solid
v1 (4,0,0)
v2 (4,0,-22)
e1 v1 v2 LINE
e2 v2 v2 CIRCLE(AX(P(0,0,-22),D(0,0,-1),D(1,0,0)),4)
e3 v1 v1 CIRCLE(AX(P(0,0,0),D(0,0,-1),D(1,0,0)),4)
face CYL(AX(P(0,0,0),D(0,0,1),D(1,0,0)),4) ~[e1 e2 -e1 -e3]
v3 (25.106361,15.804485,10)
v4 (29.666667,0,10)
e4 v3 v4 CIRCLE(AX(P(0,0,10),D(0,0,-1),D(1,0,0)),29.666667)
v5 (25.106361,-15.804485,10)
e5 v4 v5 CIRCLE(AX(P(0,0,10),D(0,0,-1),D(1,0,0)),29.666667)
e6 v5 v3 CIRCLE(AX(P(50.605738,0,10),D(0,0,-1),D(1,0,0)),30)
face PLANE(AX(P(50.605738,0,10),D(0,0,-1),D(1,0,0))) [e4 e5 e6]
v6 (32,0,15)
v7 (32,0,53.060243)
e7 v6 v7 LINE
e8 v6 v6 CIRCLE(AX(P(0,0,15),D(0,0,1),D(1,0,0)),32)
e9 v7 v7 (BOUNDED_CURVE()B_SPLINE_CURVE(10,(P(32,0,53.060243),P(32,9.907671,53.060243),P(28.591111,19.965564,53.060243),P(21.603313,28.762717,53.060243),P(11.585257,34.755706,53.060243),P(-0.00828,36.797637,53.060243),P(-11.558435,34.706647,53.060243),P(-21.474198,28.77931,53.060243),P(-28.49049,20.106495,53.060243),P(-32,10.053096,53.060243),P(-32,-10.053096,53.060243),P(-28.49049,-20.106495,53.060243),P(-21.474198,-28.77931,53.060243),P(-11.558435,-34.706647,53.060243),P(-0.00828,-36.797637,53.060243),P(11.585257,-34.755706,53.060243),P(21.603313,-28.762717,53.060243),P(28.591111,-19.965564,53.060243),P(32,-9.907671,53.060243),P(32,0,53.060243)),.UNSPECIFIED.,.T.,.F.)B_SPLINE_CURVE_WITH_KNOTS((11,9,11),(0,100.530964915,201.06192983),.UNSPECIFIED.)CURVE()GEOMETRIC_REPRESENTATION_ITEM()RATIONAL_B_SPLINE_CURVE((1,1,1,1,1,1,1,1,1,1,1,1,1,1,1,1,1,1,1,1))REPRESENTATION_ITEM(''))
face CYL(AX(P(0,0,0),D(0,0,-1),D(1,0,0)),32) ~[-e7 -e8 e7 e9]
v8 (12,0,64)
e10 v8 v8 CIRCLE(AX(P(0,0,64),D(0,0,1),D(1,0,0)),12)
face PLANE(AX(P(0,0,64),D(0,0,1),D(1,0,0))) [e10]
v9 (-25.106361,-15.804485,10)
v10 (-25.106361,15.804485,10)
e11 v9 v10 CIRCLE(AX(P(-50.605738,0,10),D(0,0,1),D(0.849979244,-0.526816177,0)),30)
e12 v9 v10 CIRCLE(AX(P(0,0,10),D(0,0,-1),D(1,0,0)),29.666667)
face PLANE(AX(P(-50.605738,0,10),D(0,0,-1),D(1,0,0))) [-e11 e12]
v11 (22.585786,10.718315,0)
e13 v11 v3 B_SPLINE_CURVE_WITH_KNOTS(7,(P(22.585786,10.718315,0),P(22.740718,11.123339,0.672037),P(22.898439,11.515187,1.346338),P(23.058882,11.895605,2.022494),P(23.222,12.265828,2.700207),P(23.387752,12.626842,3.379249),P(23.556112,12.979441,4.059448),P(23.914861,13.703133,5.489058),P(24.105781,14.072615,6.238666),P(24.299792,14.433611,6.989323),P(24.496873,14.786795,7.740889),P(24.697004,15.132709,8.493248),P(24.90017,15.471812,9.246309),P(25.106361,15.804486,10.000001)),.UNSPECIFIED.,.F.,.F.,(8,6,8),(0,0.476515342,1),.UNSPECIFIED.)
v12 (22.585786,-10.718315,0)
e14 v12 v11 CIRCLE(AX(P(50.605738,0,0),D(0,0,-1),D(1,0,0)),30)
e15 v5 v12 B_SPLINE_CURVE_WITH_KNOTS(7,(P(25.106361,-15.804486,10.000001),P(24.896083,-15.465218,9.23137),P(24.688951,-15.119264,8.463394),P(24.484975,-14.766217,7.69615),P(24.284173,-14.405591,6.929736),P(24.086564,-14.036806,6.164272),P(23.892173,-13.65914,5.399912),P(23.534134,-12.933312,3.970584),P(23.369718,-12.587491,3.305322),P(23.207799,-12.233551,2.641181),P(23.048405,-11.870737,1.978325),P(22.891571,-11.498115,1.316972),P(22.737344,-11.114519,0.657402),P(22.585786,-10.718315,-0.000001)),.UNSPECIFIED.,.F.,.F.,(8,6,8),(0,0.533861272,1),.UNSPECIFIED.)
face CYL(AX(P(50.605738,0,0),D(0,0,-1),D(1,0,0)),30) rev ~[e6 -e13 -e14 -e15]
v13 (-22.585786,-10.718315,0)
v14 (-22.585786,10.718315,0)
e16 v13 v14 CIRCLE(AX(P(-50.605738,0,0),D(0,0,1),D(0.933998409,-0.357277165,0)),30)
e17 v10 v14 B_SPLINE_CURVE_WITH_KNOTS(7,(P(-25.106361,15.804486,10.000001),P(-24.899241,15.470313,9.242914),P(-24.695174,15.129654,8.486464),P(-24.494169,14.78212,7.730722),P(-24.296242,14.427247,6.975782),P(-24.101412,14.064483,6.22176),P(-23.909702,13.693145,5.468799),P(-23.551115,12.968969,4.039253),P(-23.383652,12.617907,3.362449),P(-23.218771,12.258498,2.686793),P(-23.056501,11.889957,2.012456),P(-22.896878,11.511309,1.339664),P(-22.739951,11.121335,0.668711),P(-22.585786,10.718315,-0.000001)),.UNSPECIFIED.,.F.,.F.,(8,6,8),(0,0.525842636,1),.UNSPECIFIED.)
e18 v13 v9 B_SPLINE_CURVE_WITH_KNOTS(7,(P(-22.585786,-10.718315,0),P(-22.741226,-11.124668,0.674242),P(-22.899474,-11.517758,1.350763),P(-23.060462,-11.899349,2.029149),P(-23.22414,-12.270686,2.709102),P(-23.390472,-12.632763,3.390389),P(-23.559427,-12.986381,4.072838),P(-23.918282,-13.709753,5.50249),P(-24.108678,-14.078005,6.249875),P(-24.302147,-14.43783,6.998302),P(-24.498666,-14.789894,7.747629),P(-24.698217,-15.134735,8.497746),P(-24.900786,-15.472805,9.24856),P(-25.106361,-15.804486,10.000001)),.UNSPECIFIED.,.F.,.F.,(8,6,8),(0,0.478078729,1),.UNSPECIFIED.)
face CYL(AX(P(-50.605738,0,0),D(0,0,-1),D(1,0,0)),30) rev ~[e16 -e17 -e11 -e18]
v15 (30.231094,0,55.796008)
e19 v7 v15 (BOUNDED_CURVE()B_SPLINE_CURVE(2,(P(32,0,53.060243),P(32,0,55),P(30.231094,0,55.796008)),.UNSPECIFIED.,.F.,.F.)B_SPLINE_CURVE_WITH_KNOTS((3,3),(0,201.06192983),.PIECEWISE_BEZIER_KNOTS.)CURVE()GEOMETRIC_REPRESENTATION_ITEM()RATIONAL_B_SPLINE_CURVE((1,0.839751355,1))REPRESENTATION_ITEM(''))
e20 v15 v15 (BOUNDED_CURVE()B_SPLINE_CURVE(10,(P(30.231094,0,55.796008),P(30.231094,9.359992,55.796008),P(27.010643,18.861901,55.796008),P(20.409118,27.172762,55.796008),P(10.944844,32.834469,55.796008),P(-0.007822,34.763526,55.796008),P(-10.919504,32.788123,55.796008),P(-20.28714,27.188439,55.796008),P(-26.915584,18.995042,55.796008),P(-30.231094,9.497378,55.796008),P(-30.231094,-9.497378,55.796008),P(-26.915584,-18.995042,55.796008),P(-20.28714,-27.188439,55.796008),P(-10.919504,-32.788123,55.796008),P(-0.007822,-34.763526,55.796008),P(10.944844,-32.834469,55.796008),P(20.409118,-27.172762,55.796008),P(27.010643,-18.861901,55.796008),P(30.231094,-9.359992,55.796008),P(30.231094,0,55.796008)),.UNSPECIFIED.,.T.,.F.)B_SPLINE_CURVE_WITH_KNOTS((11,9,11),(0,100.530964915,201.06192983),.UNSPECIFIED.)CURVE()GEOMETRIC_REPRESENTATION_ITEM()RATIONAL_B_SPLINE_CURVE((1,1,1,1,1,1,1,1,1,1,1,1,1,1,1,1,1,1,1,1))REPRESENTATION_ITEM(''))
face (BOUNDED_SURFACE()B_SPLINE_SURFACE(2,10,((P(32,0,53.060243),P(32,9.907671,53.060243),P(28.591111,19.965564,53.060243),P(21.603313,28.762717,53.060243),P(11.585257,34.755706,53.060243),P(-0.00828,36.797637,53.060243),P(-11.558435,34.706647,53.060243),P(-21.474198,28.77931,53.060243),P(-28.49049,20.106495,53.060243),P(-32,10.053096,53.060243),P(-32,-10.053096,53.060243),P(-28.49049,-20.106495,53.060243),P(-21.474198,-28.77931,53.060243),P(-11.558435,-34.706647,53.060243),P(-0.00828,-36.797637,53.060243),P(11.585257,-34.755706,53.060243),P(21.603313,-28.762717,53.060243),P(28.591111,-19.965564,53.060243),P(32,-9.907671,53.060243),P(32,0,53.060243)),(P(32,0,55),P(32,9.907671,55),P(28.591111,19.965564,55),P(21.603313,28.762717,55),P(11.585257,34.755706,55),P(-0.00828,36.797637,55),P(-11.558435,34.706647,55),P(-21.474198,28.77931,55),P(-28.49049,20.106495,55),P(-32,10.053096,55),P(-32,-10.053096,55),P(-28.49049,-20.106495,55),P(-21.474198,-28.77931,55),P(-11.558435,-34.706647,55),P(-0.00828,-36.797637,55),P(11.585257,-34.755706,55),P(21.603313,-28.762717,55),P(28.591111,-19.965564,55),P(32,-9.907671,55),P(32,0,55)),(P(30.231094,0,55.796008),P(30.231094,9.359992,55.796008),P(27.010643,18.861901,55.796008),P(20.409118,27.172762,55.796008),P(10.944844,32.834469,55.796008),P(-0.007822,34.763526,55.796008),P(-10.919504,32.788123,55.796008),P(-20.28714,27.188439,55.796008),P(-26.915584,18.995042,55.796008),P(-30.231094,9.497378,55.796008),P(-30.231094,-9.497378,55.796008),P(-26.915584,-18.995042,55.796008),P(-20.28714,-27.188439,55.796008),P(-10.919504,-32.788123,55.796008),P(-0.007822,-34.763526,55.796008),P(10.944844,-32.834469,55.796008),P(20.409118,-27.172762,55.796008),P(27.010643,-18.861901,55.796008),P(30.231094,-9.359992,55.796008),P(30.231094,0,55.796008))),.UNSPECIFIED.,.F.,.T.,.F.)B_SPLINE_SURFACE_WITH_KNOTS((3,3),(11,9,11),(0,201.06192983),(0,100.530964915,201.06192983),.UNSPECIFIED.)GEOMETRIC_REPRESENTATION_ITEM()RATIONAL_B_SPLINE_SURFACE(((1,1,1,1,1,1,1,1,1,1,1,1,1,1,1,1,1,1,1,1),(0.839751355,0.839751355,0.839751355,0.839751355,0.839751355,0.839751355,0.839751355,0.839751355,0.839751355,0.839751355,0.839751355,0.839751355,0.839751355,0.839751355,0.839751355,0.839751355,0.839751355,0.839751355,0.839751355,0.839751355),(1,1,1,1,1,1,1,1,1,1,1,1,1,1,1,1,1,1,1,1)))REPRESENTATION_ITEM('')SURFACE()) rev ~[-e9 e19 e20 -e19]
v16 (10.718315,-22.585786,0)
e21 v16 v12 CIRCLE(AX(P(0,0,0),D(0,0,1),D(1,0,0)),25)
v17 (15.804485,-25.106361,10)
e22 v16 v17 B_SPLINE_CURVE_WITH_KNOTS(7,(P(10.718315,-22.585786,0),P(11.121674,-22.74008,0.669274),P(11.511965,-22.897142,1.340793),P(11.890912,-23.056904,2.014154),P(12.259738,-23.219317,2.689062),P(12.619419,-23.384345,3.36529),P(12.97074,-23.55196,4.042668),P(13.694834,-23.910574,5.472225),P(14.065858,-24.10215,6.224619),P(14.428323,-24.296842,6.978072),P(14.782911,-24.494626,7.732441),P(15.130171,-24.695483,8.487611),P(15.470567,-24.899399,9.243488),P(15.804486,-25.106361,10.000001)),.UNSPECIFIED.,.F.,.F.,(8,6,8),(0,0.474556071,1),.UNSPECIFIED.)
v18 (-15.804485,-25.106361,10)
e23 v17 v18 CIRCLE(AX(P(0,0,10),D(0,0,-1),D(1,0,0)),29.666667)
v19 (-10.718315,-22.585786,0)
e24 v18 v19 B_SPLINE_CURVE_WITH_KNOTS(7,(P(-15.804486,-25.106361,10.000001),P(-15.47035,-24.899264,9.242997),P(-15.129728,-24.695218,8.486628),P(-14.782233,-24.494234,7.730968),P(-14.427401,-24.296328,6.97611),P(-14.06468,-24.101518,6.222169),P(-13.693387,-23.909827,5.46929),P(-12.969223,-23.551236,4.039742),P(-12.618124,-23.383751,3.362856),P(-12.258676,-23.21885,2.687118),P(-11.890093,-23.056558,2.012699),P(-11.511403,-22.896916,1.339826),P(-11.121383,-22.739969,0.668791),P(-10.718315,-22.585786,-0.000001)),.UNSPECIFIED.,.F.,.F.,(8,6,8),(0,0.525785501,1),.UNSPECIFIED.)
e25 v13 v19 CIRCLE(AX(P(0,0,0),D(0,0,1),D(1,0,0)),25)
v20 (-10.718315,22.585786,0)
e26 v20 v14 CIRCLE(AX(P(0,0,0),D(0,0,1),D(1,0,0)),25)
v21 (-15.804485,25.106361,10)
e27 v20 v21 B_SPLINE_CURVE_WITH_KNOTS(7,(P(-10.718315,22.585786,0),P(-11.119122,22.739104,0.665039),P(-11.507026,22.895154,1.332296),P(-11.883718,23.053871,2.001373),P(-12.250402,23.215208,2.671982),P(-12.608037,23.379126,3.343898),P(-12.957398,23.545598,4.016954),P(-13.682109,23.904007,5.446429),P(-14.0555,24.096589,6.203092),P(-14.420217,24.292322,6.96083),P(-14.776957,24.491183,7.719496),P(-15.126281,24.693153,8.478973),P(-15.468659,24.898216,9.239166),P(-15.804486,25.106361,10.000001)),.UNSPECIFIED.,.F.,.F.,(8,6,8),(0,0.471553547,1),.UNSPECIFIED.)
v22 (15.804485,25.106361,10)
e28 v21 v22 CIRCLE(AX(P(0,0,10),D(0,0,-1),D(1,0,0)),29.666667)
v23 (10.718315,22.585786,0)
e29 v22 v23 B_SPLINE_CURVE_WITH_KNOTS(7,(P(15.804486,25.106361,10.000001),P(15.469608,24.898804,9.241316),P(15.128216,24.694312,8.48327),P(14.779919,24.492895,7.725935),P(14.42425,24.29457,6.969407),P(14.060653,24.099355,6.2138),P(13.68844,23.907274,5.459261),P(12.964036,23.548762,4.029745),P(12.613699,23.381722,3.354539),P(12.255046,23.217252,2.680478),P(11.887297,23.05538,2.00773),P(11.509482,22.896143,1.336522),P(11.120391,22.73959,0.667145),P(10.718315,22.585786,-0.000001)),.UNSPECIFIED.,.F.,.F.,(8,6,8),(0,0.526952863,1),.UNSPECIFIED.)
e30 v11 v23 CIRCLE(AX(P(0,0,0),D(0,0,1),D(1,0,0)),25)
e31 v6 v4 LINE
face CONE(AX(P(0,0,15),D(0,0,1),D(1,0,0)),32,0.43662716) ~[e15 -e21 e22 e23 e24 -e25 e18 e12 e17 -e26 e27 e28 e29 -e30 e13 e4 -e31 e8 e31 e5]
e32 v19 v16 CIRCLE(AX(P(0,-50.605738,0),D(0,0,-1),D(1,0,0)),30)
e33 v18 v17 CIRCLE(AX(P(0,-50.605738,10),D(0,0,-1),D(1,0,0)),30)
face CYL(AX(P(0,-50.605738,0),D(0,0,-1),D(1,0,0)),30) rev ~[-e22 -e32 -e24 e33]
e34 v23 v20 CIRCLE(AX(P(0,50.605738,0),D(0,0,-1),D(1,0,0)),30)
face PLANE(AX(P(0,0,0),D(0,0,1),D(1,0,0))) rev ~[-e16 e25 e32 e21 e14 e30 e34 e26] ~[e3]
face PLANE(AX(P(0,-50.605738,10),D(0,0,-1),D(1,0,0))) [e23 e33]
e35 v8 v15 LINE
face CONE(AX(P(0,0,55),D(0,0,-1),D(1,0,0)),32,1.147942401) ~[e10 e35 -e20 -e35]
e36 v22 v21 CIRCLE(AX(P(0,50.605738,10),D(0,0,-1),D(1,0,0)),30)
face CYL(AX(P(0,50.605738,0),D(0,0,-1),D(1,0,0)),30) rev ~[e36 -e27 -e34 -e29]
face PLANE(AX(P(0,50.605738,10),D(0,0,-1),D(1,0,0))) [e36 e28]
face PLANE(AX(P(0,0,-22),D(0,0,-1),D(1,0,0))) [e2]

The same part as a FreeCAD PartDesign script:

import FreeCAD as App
import Part
import Sketcher

V = App.Vector
Q = App.Units.Quantity


def edges_at(feature, points):
    """Names of the edges that pass closest to the given points."""
    edges = feature.Shape.Edges
    near = lambda p: min(range(len(edges)), key=lambda i: edges[i].distToShape(Part.Vertex(*p))[0])
    return sorted({f"Edge{near(p) + 1}" for p in points})

doc = App.newDocument("Part")
body = doc.addObject("PartDesign::Body", "Body")

# Sketch on XY plane
sketch1 = doc.addObject("Sketcher::SketchObject", "Sketch")
body.addObject(sketch1)
sketch1.AttachmentSupport = (doc.XY_Plane, [""])
sketch1.MapMode = "FlatFace"
sketch1.addGeometry(Part.Circle(V(0, 0, 0), V(0, 0, 1), 32), False)
sketch1.addConstraint([
    Sketcher.Constraint("Coincident", 0, 3, -1, 1),
    Sketcher.Constraint("Diameter", 0, Q("64 mm")),
])
pad1 = doc.addObject("PartDesign::Pad", "Pad")
body.addObject(pad1)
pad1.Profile = sketch1
pad1.Length = 64
doc.recompute()

chamfer = doc.addObject("PartDesign::Chamfer", "Chamfer")
body.addObject(chamfer)
chamfer.Base = (pad1, edges_at(pad1, [(-32, 0, 64)]))
chamfer.ChamferType = "Two distances"
chamfer.Size = 20
chamfer.Size2 = 9
chamfer.FlipDirection = True
doc.recompute()

chamfer2 = doc.addObject("PartDesign::Chamfer", "Chamfer001")
body.addObject(chamfer2)
chamfer2.Base = (chamfer, edges_at(chamfer, [(-32, 0, 0)]))
chamfer2.ChamferType = "Two distances"
chamfer2.Size = 15
chamfer2.Size2 = 7
doc.recompute()

fillet = doc.addObject("PartDesign::Fillet", "Fillet")
body.addObject(fillet)
fillet.Base = (chamfer2, edges_at(chamfer2, [(-32, 0, 55)]))
fillet.Radius = 3

# Sketch on XY plane
sketch2 = doc.addObject("Sketcher::SketchObject", "Sketch001")
body.addObject(sketch2)
sketch2.AttachmentSupport = (doc.XY_Plane, [""])
sketch2.MapMode = "FlatFace"
sketch2.addGeometry([
    Part.Circle(V(-51, 0, 0), V(0, 0, 1), 30),
    Part.Circle(V(0, 51, 0), V(0, 0, 1), 30),
    Part.Circle(V(51, 0, 0), V(0, 0, 1), 30),
    Part.Circle(V(0, -51, 0), V(0, 0, 1), 30),
], False)
sketch2.addConstraint([
    Sketcher.Constraint("Equal", 0, 1),
    Sketcher.Constraint("Equal", 1, 2),
    Sketcher.Constraint("Equal", 2, 3),
    Sketcher.Constraint("Symmetric", 0, 3, 2, 3, -1, 1),
    Sketcher.Constraint("Symmetric", 1, 3, 3, 3, -1, 1),
    Sketcher.Constraint("PointOnObject", 0, 3, -1),
    Sketcher.Constraint("PointOnObject", 1, 3, -2),
    Sketcher.Constraint("Diameter", 0, Q("60 mm")),
    Sketcher.Constraint("DistanceX", 0, 3, -1, 1, Q("50.605738 mm")),
    Sketcher.Constraint("DistanceY", -1, 1, 1, 3, Q("50.605738 mm")),
])
pocket1 = doc.addObject("PartDesign::Pocket", "Pocket")
body.addObject(pocket1)
pocket1.Profile = sketch2
pocket1.Length = 10
pocket1.Reversed = True

# Sketch on XY plane
sketch3 = doc.addObject("Sketcher::SketchObject", "Sketch002")
body.addObject(sketch3)
sketch3.AttachmentSupport = (doc.XY_Plane, [""])
sketch3.MapMode = "FlatFace"
sketch3.addGeometry(Part.Circle(V(0, 0, 0), V(0, 0, 1), 4), False)
sketch3.addConstraint([
    Sketcher.Constraint("Coincident", 0, 3, -1, 1),
    Sketcher.Constraint("Diameter", 0, Q("8 mm")),
])
pad2 = doc.addObject("PartDesign::Pad", "Pad001")
body.addObject(pad2)
pad2.Profile = sketch3
pad2.Length = 22
pad2.Reversed = True

doc.recompute()
